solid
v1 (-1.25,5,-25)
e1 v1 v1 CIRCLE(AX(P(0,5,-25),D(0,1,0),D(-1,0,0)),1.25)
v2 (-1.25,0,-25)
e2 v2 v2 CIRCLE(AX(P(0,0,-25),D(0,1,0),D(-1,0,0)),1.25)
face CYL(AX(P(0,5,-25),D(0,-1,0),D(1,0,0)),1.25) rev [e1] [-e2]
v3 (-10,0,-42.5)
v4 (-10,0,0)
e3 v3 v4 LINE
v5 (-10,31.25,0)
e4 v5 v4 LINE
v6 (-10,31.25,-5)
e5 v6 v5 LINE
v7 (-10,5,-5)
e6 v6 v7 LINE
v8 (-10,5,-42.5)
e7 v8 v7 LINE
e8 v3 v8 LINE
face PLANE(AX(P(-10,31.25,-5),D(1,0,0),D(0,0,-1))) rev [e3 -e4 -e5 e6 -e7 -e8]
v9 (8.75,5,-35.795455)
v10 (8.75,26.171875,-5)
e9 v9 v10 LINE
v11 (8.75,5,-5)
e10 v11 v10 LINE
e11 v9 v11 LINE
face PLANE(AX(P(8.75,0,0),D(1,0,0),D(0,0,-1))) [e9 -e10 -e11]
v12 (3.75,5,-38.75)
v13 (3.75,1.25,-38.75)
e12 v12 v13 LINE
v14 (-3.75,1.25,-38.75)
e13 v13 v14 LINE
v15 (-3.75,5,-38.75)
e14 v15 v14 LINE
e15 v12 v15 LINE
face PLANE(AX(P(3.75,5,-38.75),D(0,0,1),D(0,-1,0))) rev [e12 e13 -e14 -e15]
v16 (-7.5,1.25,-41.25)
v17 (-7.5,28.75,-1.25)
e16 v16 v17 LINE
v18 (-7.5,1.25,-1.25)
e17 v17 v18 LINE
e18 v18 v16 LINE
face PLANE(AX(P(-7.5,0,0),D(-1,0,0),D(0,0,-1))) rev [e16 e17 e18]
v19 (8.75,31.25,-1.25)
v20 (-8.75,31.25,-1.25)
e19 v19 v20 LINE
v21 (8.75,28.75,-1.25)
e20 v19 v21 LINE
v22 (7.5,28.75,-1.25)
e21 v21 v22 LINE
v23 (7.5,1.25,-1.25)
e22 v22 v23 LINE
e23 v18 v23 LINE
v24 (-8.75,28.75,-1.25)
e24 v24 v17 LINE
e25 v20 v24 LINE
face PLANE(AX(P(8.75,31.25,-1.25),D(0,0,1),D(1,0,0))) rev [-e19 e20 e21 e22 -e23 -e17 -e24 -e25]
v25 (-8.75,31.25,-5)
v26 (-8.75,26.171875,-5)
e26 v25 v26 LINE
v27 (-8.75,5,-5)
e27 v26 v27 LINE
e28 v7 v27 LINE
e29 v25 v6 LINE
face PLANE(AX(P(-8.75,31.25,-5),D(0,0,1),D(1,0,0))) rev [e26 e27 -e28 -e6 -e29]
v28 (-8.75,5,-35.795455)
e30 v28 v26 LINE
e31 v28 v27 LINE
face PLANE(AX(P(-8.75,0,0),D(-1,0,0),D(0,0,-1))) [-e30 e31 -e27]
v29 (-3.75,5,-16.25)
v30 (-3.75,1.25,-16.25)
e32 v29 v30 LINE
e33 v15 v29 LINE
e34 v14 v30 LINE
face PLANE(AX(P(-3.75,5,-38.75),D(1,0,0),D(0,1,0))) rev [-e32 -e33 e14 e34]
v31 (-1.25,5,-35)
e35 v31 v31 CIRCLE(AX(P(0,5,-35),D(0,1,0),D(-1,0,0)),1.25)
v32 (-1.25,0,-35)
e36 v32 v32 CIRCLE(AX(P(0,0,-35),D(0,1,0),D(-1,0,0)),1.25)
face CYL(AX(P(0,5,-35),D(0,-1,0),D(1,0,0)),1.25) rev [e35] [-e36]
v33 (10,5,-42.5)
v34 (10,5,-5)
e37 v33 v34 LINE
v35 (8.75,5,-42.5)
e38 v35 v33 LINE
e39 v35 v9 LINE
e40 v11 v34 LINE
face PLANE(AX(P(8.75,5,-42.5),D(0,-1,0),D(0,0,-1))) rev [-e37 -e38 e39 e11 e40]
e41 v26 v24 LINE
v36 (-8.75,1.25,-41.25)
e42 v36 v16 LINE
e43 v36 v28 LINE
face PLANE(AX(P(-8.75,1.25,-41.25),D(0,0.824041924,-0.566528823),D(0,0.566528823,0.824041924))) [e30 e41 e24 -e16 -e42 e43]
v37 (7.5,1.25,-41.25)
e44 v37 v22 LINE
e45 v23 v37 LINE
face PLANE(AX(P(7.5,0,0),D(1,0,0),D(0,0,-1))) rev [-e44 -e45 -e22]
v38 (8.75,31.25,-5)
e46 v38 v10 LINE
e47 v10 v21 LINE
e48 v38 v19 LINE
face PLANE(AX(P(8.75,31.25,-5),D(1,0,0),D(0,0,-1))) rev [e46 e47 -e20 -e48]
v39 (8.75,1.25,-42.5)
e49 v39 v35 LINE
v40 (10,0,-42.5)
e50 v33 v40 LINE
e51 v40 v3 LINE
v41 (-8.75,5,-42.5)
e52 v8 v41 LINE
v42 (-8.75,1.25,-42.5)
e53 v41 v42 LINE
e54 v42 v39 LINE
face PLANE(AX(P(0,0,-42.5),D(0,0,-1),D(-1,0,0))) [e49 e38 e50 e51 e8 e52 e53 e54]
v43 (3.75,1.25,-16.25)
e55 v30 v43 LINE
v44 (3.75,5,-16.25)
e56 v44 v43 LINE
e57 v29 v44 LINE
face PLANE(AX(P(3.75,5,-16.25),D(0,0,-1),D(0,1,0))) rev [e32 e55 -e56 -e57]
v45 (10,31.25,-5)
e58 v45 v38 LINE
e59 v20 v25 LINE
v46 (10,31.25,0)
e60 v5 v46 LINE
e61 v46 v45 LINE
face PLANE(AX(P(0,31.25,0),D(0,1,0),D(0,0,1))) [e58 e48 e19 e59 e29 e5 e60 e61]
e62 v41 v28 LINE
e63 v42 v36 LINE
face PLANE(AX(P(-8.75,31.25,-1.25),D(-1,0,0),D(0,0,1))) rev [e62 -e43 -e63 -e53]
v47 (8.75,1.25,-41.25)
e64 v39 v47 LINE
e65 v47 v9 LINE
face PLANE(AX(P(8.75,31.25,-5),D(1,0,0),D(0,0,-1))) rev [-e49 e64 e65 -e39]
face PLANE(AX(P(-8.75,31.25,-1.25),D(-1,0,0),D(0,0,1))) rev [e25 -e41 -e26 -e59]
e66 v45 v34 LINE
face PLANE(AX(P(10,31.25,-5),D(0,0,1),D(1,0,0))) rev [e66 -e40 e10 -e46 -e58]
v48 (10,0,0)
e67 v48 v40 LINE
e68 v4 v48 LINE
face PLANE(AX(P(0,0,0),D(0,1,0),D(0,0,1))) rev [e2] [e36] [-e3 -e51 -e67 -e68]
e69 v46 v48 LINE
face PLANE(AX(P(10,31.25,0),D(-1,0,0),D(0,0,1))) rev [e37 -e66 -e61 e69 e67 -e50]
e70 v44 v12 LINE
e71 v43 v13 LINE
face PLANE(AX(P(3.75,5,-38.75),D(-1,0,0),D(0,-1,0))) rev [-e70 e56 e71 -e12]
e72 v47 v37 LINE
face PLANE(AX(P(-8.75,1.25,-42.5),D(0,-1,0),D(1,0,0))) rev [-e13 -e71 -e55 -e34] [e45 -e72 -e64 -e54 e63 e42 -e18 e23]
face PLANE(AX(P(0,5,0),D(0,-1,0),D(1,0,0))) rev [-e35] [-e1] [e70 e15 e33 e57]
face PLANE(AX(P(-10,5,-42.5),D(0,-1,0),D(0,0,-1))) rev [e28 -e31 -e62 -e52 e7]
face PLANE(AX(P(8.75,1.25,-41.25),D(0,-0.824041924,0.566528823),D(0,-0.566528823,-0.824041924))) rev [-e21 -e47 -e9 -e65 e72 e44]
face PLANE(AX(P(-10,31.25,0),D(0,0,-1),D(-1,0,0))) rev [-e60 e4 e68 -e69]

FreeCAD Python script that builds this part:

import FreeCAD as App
import Part
import Sketcher

V = App.Vector
Q = App.Units.Quantity


def add_polygon(sketch, points):
    """Adds a closed chain of lines whose ends are joined by coincident constraints."""
    first, n = sketch.GeometryCount, len(points)
    for a, b in zip(points, points[1:] + points[:1]):
        sketch.addGeometry(Part.LineSegment(App.Vector(*a, 0), App.Vector(*b, 0)), False)
    for i in range(n):
        sketch.addConstraint(Sketcher.Constraint("Coincident", first + i, 2, first + (i + 1) % n, 1))

doc = App.newDocument("Part")
body = doc.addObject("PartDesign::Body", "Body")

sketch1 = body.newObject("Sketcher::SketchObject", "Sketch")
sketch1.AttachmentSupport = (doc.getObject("XZ_Plane"), [""])
sketch1.MapMode = "FlatFace"
add_polygon(sketch1, [(-10, 0), (10, 0), (10, -5), (8.8, -5), (8.8, -1.2), (-8.8, -1.2), (-8.8, -5), (-10, -5)])
sketch1.addConstraint([
    Sketcher.Constraint("Horizontal", 0),
    Sketcher.Constraint("Vertical", 1),
    Sketcher.Constraint("Horizontal", 2),
    Sketcher.Constraint("Vertical", 3),
    Sketcher.Constraint("Horizontal", 4),
    Sketcher.Constraint("Vertical", 5),
    Sketcher.Constraint("Horizontal", 6),
    Sketcher.Constraint("Vertical", 7),
    Sketcher.Constraint("Symmetric", 0, 2, 7, 2, -1, 1),
    Sketcher.Constraint("Symmetric", 2, 2, 5, 2, -2),
    Sketcher.Constraint("DistanceX", 0, 1, 0, 2, Q("20 mm")),
    Sketcher.Constraint("DistanceY", 1, 2, 1, 1, Q("5 mm")),
    Sketcher.Constraint("DistanceX", 4, 2, 4, 1, Q("17.5 mm")),
    Sketcher.Constraint("DistanceY", 3, 1, 3, 2, Q("3.75 mm")),
])
pad1 = body.newObject("PartDesign::Pad", "Pad")
pad1.Profile = sketch1
pad1.Length = 31.25
pad1.Reversed = True

sketch2 = body.newObject("Sketcher::SketchObject", "Sketch001")
sketch2.AttachmentSupport = (doc.getObject("XY_Plane"), [""])
sketch2.MapMode = "FlatFace"
sketch2.AttachmentOffset = App.Placement(V(0, 0, -1.25), App.Rotation())
add_polygon(sketch2, [(10, 5), (10, 0), (-10, 0), (-10, 5), (-8.8, 5), (-8.8, 1.2), (8.8, 1.2), (8.8, 5)])
sketch2.addConstraint([
    Sketcher.Constraint("Vertical", 0),
    Sketcher.Constraint("Horizontal", 1),
    Sketcher.Constraint("Vertical", 2),
    Sketcher.Constraint("Horizontal", 3),
    Sketcher.Constraint("Vertical", 4),
    Sketcher.Constraint("Horizontal", 5),
    Sketcher.Constraint("Vertical", 6),
    Sketcher.Constraint("Horizontal", 7),
    Sketcher.Constraint("Symmetric", 0, 2, 1, 2, -1, 1),
    Sketcher.Constraint("Symmetric", 3, 2, 6, 2, -2),
    Sketcher.Constraint("DistanceX", 1, 2, 1, 1, Q("20 mm")),
    Sketcher.Constraint("DistanceY", 0, 2, 0, 1, Q("5 mm")),
    Sketcher.Constraint("DistanceX", 5, 1, 5, 2, Q("17.5 mm")),
    Sketcher.Constraint("DistanceY", 4, 2, 4, 1, Q("3.75 mm")),
])
pad2 = body.newObject("PartDesign::Pad", "Pad001")
pad2.Profile = sketch2
pad2.Length = 41.25
pad2.Reversed = True

sketch3 = body.newObject("Sketcher::SketchObject", "Sketch002")
sketch3.AttachmentSupport = (doc.getObject("YZ_Plane"), [""])
sketch3.MapMode = "FlatFace"
sketch3.AttachmentOffset = App.Placement(V(0, 0, 7.5), App.Rotation())
add_polygon(sketch3, [(29, -1), (1, -1), (1, -41)])
sketch3.addConstraint([
    Sketcher.Constraint("Horizontal", 0),
    Sketcher.Constraint("Vertical", 1),
    Sketcher.Constraint("DistanceY", 1, 2, 1, 1, Q("40 mm")),
    Sketcher.Constraint("DistanceX", 0, 2, 0, 1, Q("27.5 mm")),
    Sketcher.Constraint("DistanceX", -1, 1, 0, 2, Q("1.25 mm")),
    Sketcher.Constraint("DistanceY", 0, 2, -1, 1, Q("1.25 mm")),
])
pad3 = body.newObject("PartDesign::Pad", "Pad002")
pad3.Profile = sketch3
pad3.Length = 1.25
doc.recompute()

mirrored = body.newObject("PartDesign::Mirrored", "Mirrored")
mirrored.Originals = [pad3]
mirrored.MirrorPlane = (doc.getObject("YZ_Plane"), [""])
body.Tip = mirrored

sketch4 = body.newObject("Sketcher::SketchObject", "Sketch003")
sketch4.AttachmentSupport = (doc.getObject("XZ_Plane"), [""])
sketch4.MapMode = "FlatFace"
sketch4.AttachmentOffset = App.Placement(V(0, 0, -1.25), App.Rotation())
add_polygon(sketch4, [(-3.8, -38.8), (-3.8, -16.2), (3.8, -16.2), (3.8, -38.8)])
sketch4.addGeometry(Part.Circle(V(0, -25, 0), V(0, 0, 1), 1.2), False)
sketch4.addGeometry(Part.Circle(V(0, -35, 0), V(0, 0, 1), 1.2), False)
sketch4.addConstraint([
    Sketcher.Constraint("Vertical", 0),
    Sketcher.Constraint("Horizontal", 1),
    Sketcher.Constraint("Vertical", 2),
    Sketcher.Constraint("Horizontal", 3),
    Sketcher.Constraint("Equal", 4, 5),
    Sketcher.Constraint("PointOnObject", 4, 3, -2),
    Sketcher.Constraint("PointOnObject", 5, 3, -2),
    Sketcher.Constraint("Diameter", 4, Q("2.5 mm")),
    Sketcher.Constraint("DistanceX", 1, 1, 1, 2, Q("7.5 mm")),
    Sketcher.Constraint("DistanceY", 0, 1, 0, 2, Q("22.5 mm")),
    Sketcher.Constraint("DistanceY", 4, 3, -1, 1, Q("25 mm")),
    Sketcher.Constraint("DistanceY", 5, 3, -1, 1, Q("35 mm")),
    Sketcher.Constraint("DistanceX", 0, 2, -1, 1, Q("3.75 mm")),
    Sketcher.Constraint("DistanceY", 0, 2, -1, 1, Q("16.25 mm")),
])
pad4 = body.newObject("PartDesign::Pad", "Pad003")
pad4.Profile = sketch4
pad4.Length = 3.75
pad4.Reversed = True

sketch5 = body.newObject("Sketcher::SketchObject", "Sketch004")
sketch5.AttachmentSupport = (doc.getObject("XZ_Plane"), [""])
sketch5.MapMode = "FlatFace"
sketch5.AttachmentOffset = App.Placement(V(0, 0, -1.25), App.Rotation())
sketch5.addGeometry([
    Part.Circle(V(0, -35, 0), V(0, 0, 1), 1.2),
    Part.Circle(V(0, -25, 0), V(0, 0, 1), 1.2),
], False)
sketch5.addConstraint([
    Sketcher.Constraint("Equal", 0, 1),
    Sketcher.Constraint("PointOnObject", 0, 3, -2),
    Sketcher.Constraint("PointOnObject", 1, 3, -2),
    Sketcher.Constraint("Diameter", 0, Q("2.5 mm")),
    Sketcher.Constraint("DistanceY", 0, 3, -1, 1, Q("35 mm")),
    Sketcher.Constraint("DistanceY", 1, 3, -1, 1, Q("25 mm")),
])
pocket1 = body.newObject("PartDesign::Pocket", "Pocket")
pocket1.Profile = sketch5
pocket1.Type = "ThroughAll"
pocket1.Midplane = True

doc.recompute()
